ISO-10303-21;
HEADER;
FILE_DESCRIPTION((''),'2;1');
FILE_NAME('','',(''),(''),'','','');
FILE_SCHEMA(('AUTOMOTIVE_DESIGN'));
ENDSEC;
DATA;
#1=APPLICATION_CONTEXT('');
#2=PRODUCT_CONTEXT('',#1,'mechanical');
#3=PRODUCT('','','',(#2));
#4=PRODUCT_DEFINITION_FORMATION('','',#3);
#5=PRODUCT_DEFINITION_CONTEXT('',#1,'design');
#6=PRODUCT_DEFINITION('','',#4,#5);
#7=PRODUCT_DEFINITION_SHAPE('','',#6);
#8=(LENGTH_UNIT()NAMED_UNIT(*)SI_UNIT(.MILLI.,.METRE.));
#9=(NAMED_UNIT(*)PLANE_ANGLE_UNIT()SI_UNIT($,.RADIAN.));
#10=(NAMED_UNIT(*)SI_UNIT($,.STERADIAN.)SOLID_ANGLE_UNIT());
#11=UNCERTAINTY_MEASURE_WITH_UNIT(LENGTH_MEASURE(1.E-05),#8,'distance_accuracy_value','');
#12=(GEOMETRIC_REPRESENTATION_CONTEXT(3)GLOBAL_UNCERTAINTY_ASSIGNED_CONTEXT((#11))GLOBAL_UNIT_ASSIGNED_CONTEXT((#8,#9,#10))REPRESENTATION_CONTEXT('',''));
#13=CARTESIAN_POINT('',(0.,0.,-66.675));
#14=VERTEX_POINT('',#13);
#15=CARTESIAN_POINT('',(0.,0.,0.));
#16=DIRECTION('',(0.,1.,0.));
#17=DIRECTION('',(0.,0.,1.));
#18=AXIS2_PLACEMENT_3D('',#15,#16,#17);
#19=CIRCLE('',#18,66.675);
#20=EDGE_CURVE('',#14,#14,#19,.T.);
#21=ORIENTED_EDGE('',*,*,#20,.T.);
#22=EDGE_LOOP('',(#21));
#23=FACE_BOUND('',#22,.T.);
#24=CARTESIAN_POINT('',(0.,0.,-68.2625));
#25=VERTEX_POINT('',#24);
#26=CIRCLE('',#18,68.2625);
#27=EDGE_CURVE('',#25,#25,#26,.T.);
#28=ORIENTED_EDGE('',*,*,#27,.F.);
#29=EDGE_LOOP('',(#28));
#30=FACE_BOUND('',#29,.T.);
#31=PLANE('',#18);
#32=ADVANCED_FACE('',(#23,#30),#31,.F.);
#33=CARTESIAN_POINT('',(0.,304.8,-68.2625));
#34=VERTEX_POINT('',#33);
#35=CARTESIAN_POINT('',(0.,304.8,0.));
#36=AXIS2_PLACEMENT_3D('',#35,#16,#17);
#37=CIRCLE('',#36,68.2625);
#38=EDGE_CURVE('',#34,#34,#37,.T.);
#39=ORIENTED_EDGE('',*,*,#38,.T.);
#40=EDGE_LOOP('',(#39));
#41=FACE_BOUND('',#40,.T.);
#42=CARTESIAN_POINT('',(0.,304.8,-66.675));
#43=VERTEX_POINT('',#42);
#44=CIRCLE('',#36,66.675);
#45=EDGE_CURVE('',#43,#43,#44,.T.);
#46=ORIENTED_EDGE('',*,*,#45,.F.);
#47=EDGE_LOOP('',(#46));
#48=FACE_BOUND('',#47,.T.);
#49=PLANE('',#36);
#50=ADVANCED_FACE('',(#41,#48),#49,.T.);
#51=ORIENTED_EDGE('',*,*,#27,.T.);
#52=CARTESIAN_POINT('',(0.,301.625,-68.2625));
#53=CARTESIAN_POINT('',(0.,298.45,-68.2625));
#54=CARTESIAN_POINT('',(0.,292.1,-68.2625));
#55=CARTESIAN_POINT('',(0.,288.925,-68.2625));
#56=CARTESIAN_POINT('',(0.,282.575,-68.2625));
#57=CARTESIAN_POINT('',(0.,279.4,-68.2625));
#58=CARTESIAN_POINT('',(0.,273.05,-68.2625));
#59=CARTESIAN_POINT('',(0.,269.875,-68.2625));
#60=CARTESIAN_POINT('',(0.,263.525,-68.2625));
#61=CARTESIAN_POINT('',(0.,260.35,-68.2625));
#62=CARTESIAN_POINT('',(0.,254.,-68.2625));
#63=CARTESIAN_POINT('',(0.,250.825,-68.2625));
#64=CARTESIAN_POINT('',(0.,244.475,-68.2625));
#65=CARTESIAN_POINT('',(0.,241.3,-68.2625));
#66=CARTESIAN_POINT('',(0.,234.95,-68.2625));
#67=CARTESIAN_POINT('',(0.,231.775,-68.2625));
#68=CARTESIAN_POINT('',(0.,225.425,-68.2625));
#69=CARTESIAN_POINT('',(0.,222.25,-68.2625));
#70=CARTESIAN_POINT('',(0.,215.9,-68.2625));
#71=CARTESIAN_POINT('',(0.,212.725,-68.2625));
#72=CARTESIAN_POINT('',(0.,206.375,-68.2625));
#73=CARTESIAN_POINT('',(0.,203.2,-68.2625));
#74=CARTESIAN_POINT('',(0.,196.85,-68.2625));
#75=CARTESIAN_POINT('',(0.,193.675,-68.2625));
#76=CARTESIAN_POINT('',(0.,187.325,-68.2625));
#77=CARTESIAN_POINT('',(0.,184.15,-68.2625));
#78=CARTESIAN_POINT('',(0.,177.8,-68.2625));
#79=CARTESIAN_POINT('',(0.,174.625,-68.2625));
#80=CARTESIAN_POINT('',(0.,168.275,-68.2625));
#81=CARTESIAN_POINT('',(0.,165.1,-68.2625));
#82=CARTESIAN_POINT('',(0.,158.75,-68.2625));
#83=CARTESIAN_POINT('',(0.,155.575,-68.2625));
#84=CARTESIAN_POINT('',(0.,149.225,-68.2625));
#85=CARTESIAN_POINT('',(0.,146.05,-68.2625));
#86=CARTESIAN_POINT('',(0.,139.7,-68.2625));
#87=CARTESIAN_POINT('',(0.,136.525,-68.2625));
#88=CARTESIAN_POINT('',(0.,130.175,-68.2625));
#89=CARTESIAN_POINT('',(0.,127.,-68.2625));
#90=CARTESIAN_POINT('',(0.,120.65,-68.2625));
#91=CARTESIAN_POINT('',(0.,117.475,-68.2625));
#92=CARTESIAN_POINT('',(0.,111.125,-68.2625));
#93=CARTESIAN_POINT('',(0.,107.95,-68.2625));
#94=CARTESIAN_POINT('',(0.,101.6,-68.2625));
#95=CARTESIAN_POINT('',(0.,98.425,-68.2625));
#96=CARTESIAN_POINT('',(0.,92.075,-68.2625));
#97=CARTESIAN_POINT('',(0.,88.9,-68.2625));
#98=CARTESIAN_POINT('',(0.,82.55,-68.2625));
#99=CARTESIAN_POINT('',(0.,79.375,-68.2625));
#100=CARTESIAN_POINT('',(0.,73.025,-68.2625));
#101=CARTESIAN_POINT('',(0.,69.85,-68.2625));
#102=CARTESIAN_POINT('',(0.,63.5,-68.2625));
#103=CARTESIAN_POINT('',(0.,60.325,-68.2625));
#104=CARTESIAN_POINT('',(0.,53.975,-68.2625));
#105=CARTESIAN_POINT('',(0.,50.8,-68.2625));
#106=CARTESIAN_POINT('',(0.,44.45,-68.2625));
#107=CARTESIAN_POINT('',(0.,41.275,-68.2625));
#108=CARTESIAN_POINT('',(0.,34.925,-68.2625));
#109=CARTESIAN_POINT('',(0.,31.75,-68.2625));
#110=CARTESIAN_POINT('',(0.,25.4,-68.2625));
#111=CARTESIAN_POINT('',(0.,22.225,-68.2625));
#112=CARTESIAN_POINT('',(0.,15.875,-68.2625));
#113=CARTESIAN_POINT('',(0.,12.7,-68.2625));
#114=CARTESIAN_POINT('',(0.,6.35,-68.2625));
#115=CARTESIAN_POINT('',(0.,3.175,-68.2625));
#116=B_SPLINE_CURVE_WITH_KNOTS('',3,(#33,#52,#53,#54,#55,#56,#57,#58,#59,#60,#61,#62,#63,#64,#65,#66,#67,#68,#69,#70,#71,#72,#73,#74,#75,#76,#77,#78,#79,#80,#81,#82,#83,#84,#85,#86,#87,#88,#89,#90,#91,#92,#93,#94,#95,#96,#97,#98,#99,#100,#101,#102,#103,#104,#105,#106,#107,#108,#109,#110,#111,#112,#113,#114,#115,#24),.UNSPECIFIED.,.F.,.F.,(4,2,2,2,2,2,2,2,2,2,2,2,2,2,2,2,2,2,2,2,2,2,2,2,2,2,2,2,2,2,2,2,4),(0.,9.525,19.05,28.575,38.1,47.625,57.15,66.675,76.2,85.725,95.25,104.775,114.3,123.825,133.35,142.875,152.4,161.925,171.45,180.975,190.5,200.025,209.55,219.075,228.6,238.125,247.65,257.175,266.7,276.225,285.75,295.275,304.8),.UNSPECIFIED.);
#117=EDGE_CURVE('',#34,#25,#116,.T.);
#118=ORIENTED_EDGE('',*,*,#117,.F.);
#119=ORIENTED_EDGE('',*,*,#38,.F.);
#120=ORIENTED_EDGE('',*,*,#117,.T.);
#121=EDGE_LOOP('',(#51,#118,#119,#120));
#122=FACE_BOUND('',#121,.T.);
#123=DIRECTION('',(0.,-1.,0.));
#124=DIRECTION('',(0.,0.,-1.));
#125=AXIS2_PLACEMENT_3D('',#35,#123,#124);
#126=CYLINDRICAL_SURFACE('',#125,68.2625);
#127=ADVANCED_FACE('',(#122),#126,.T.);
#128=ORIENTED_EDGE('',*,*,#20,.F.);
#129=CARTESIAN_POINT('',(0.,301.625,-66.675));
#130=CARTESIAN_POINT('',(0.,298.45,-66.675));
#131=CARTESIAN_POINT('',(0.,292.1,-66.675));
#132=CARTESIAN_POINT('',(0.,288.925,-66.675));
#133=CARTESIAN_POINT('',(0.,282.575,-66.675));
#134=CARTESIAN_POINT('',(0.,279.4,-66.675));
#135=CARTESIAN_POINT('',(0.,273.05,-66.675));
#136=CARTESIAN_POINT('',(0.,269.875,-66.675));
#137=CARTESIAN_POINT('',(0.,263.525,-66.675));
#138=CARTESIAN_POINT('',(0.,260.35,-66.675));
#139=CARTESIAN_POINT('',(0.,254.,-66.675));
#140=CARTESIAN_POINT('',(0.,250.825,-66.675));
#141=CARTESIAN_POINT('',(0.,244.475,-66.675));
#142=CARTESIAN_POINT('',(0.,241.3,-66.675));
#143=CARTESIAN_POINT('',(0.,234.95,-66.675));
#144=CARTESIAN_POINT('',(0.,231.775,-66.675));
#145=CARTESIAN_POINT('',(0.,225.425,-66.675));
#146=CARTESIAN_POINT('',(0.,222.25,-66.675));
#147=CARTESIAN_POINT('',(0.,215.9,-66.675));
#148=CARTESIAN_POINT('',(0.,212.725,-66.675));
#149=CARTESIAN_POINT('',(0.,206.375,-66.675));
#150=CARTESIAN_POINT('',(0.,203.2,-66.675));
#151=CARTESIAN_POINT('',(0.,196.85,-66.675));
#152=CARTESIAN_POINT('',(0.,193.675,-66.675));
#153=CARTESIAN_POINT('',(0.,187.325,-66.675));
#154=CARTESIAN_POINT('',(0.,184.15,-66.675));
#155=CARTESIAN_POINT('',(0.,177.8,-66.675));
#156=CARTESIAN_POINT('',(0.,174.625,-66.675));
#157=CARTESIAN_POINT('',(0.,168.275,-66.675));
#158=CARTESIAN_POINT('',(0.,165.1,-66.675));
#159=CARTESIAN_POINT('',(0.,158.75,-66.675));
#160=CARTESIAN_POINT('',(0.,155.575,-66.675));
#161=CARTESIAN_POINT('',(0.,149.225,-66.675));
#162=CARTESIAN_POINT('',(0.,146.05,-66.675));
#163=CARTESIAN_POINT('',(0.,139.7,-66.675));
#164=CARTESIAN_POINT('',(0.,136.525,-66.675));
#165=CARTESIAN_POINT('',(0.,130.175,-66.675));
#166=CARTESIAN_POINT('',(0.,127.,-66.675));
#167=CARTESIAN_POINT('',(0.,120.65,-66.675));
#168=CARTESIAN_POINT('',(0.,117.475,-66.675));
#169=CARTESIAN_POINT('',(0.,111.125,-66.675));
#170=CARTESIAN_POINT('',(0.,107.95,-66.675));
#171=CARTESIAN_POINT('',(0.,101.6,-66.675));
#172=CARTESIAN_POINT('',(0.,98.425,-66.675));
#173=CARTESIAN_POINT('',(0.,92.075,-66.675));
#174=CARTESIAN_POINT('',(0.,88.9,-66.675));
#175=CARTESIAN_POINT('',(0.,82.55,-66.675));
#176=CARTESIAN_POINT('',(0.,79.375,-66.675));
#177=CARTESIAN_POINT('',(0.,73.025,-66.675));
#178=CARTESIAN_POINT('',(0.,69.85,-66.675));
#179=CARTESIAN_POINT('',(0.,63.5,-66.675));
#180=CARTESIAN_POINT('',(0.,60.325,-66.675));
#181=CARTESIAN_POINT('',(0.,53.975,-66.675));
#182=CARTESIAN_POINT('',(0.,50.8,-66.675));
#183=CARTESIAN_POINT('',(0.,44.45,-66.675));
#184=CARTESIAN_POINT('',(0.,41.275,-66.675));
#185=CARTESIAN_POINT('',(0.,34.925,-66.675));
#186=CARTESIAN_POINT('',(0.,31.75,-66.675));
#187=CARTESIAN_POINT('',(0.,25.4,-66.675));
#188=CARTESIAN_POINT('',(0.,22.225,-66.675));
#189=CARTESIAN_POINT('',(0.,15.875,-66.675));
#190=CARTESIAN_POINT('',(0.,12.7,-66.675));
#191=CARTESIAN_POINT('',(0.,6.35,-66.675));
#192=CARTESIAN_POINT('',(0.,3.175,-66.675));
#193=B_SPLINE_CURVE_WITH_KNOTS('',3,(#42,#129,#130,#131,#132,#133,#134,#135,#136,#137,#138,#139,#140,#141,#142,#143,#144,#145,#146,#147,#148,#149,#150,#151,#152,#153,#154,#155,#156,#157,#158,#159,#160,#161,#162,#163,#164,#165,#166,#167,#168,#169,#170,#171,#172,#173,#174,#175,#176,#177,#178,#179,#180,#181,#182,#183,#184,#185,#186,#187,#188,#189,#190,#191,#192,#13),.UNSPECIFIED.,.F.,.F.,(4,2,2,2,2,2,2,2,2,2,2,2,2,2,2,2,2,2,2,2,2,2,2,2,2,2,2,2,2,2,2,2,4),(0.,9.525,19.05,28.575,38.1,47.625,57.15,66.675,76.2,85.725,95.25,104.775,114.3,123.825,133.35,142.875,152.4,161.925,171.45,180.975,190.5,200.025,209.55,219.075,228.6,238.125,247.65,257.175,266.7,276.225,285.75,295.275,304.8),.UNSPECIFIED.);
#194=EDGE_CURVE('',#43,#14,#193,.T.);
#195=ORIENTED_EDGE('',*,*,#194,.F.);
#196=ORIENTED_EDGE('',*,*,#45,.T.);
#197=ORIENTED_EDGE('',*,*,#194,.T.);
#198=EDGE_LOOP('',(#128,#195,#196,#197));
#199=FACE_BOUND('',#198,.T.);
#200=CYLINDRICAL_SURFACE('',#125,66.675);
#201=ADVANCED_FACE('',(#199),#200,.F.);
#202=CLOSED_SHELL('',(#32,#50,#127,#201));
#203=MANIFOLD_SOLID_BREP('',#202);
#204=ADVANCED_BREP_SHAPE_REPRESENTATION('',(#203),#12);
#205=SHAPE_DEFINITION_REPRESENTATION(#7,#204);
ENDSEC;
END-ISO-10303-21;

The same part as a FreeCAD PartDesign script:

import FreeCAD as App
import Part
import Sketcher

V = App.Vector
Q = App.Units.Quantity

doc = App.newDocument("Part")
body = doc.addObject("PartDesign::Body", "Body")

sketch1 = doc.addObject("Sketcher::SketchObject", "Sketch")
body.addObject(sketch1)
sketch1.AttachmentSupport = (doc.XZ_Plane, [""])
sketch1.MapMode = "FlatFace"
sketch1.addGeometry([
    Part.Circle(V(0, 0, 0), V(0, 0, 1), 68),
    Part.Circle(V(0, 0, 0), V(0, 0, 1), 67),
], False)
sketch1.addConstraint([
    Sketcher.Constraint("Coincident", 0, 3, -1, 1),
    Sketcher.Constraint("Coincident", 1, 3, -1, 1),
    Sketcher.Constraint("Diameter", 1, Q("5.25 in")),
    Sketcher.Constraint("Diameter", 0, Q("5.375 in")),
])
pad1 = doc.addObject("PartDesign::Pad", "Pad")
body.addObject(pad1)
pad1.Profile = sketch1
pad1.Length = Q("12 in")
pad1.Reversed = True

doc.recompute()
